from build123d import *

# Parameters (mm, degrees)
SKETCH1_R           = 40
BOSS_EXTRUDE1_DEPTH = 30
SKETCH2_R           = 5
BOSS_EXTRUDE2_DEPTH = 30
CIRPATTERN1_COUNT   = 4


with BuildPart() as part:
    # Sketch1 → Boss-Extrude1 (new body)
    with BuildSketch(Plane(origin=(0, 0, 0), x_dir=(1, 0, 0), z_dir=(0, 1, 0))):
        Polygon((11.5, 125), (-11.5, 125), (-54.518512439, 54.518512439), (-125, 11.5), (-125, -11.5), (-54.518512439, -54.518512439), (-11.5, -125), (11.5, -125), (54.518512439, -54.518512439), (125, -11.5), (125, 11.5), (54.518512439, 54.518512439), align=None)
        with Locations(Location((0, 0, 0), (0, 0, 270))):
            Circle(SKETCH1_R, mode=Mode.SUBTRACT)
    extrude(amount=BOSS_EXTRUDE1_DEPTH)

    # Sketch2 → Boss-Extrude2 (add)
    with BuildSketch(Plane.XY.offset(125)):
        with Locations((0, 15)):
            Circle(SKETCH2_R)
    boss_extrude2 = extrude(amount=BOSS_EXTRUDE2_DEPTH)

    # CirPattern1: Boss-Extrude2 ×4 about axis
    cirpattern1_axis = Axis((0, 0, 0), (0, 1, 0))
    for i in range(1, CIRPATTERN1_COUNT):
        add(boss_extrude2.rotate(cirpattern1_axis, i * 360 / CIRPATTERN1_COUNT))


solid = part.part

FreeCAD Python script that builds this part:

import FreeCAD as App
import Part
import Sketcher
from FreeCAD import Vector

doc = App.newDocument("Part")
body = doc.addObject("PartDesign::Body", "Body")

sketch1 = body.newObject("Sketcher::SketchObject", "Sketch")
sketch1.AttachmentSupport = (doc.getObject("XZ_Plane"), [""])
sketch1.MapMode = "FlatFace"
sketch1.addGeometry([
    Part.LineSegment(Vector(12, -125, 0), Vector(-12, -125, 0)),
    Part.LineSegment(Vector(-12, -125, 0), Vector(-55, -55, 0)),
    Part.LineSegment(Vector(-55, -55, 0), Vector(-125, -12, 0)),
    Part.LineSegment(Vector(-125, -12, 0), Vector(-125, 12, 0)),
    Part.LineSegment(Vector(-125, 12, 0), Vector(-55, 55, 0)),
    Part.LineSegment(Vector(-55, 55, 0), Vector(-12, 125, 0)),
    Part.LineSegment(Vector(-12, 125, 0), Vector(12, 125, 0)),
    Part.LineSegment(Vector(12, 125, 0), Vector(55, 55, 0)),
    Part.LineSegment(Vector(55, 55, 0), Vector(125, 12, 0)),
    Part.LineSegment(Vector(125, 12, 0), Vector(125, -12, 0)),
    Part.LineSegment(Vector(125, -12, 0), Vector(55, -55, 0)),
    Part.LineSegment(Vector(55, -55, 0), Vector(12, -125, 0)),
    Part.Circle(Vector(0, 0, 0), Vector(0, 0, 1), 40),
], False)
sketch1.addConstraint([
    Sketcher.Constraint("Coincident", 0, 2, 1, 1),
    Sketcher.Constraint("Coincident", 1, 2, 2, 1),
    Sketcher.Constraint("Coincident", 2, 2, 3, 1),
    Sketcher.Constraint("Coincident", 3, 2, 4, 1),
    Sketcher.Constraint("Coincident", 4, 2, 5, 1),
    Sketcher.Constraint("Coincident", 5, 2, 6, 1),
    Sketcher.Constraint("Coincident", 6, 2, 7, 1),
    Sketcher.Constraint("Coincident", 7, 2, 8, 1),
    Sketcher.Constraint("Coincident", 8, 2, 9, 1),
    Sketcher.Constraint("Coincident", 9, 2, 10, 1),
    Sketcher.Constraint("Coincident", 10, 2, 11, 1),
    Sketcher.Constraint("Coincident", 11, 2, 0, 1),
    Sketcher.Constraint("Horizontal", 0),
    Sketcher.Constraint("Vertical", 3),
    Sketcher.Constraint("Horizontal", 6),
    Sketcher.Constraint("Vertical", 9),
    Sketcher.Constraint("Coincident", 12, 3, -1, 1),
    Sketcher.Constraint("Symmetric", 0, 2, 6, 2, -1, 1),
    Sketcher.Constraint("Symmetric", 1, 2, 7, 2, -1, 1),
    Sketcher.Constraint("Symmetric", 2, 2, 8, 2, -1, 1),
    Sketcher.Constraint("Symmetric", 4, 2, 10, 2, -1, 1),
    Sketcher.Constraint("Symmetric", 4, 2, 7, 2, -2),
    Sketcher.Constraint("Perpendicular", 1, 4),
    Sketcher.Constraint("Perpendicular", 2, 5),
    Sketcher.Constraint("Perpendicular", 7, 10),
    Sketcher.Constraint("Perpendicular", 8, 11),
    Sketcher.Constraint("Horizontal", 3, 2, 8, 2),
    Sketcher.Constraint("Equal", 6, 3),
    Sketcher.Constraint("Equal", 1, 2),
    Sketcher.Constraint("Diameter", 12, 80.0),
    Sketcher.Constraint("DistanceX", 0, 2, 0, 1, 23.0),
    Sketcher.Constraint("DistanceY", 0, 2, -1, 1, 125.0),
    Sketcher.Constraint("Distance", 1, 82.572589),
])
pad1 = body.newObject("PartDesign::Pad", "Pad")
pad1.Profile = sketch1
pad1.Length = 30
pad1.Reversed = True

sketch2 = body.newObject("Sketcher::SketchObject", "Sketch001")
sketch2.AttachmentSupport = (doc.getObject("XY_Plane"), [""])
sketch2.MapMode = "FlatFace"
sketch2.AttachmentOffset = App.Placement(Vector(0, 0, 125), App.Rotation())
sketch2.addGeometry(Part.Circle(Vector(0, 15, 0), Vector(0, 0, 1), 5), False)
sketch2.addConstraint([
    Sketcher.Constraint("PointOnObject", 0, 3, -2),
    Sketcher.Constraint("Diameter", 0, 10.0),
    Sketcher.Constraint("DistanceY", -1, 1, 0, 3, 15.0),
])
pad2 = body.newObject("PartDesign::Pad", "Pad001")
pad2.Profile = sketch2
pad2.Length = 30
doc.recompute()

polarpattern = body.newObject("PartDesign::PolarPattern", "PolarPattern")
polarpattern.Originals = [pad2]
polarpattern.Axis = (doc.getObject("Y_Axis"), [""])
polarpattern.Angle = 360
polarpattern.Occurrences = 4
body.Tip = polarpattern

doc.recompute()
